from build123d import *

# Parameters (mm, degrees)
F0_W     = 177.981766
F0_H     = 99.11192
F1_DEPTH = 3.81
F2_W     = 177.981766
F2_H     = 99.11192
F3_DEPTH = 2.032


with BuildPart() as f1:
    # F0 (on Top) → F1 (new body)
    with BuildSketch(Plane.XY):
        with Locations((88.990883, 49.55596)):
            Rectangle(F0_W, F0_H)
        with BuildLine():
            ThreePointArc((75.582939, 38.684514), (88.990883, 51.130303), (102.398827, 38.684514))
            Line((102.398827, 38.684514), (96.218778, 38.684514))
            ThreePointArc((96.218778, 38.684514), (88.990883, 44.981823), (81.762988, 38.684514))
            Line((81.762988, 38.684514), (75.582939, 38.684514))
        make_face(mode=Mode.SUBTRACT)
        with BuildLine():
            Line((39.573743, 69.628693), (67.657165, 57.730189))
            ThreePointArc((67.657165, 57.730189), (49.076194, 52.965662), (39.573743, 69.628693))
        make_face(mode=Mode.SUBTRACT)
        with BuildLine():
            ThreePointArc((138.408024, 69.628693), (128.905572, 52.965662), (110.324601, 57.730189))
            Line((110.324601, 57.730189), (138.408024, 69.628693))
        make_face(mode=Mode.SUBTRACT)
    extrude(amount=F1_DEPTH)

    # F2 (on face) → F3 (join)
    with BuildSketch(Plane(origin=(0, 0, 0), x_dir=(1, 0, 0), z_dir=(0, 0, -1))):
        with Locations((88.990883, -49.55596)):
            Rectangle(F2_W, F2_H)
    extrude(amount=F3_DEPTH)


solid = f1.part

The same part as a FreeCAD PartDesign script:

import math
import FreeCAD as App
import Part
import Sketcher

V = App.Vector
Q = App.Units.Quantity

doc = App.newDocument("Part")
params = doc.addObject("Spreadsheet::Sheet", "Params")
for row, (alias, value) in enumerate([
    ("pad1_length", "0.15 in"),
    ("pad2_length", "0.08 in"),
], start=1):
    params.set(f"A{row}", alias)
    params.set(f"B{row}", "=" + value)
    params.setAlias(f"B{row}", alias)

body = doc.addObject("PartDesign::Body", "Body")

# Sketch on XY plane
sketch1 = body.newObject("Sketcher::SketchObject", "Sketch")
sketch1.AttachmentSupport = (doc.getObject("XY_Plane"), [""])
sketch1.MapMode = "FlatFace"
sketch1.addGeometry([
    Part.LineSegment(V(0, 99, 0), V(0, 0, 0)),  # 0
    Part.LineSegment(V(0, 0, 0), V(178, 0, 0)),  # 1
    Part.LineSegment(V(178, 0, 0), V(178, 99, 0)),  # 2
    Part.LineSegment(V(178, 99, 0), V(0, 99, 0)),  # 3
    Part.LineSegment(V(82, 39, 0), V(76, 39, 0)),  # 4
    Part.ArcOfCircle(Part.Circle(V(89, 38, 0), V(0, 0, 1), 13), math.radians(4), math.radians(176)),  # 5
    Part.LineSegment(V(102, 39, 0), V(96, 39, 0)),  # 6
    Part.ArcOfCircle(Part.Circle(V(89, 38, 0), V(0, 0, 1), 7), math.radians(8), math.radians(172)),  # 7
    Part.ArcOfCircle(Part.Circle(V(55, 68, 0), V(0, 0, 1), 16), math.radians(172), math.radians(322)),  # 8
    Part.LineSegment(V(40, 70, 0), V(68, 58, 0)),  # 9
    Part.LineSegment(V(110, 58, 0), V(138, 70, 0)),  # 10
    Part.ArcOfCircle(Part.Circle(V(123, 68, 0), V(0, 0, 1), 16), math.radians(-142), math.radians(8)),  # 11
], False)
sketch1.addConstraint([
    Sketcher.Constraint("Coincident", 0, 2, 1, 1),
    Sketcher.Constraint("Coincident", 1, 2, 2, 1),
    Sketcher.Constraint("Coincident", 2, 2, 3, 1),
    Sketcher.Constraint("Coincident", 3, 2, 0, 1),
    Sketcher.Constraint("Coincident", 4, 2, 5, 2),
    Sketcher.Constraint("Coincident", 5, 1, 6, 1),
    Sketcher.Constraint("Coincident", 6, 2, 7, 1),
    Sketcher.Constraint("Coincident", 7, 2, 4, 1),
    Sketcher.Constraint("Coincident", 8, 1, 9, 1),
    Sketcher.Constraint("Coincident", 9, 2, 8, 2),
    Sketcher.Constraint("Coincident", 10, 1, 11, 1),
    Sketcher.Constraint("Coincident", 11, 2, 10, 2),
    Sketcher.Constraint("Vertical", 0),
    Sketcher.Constraint("Horizontal", 1),
    Sketcher.Constraint("Vertical", 2),
    Sketcher.Constraint("Horizontal", 3),
    Sketcher.Constraint("Horizontal", 4),
    Sketcher.Constraint("Horizontal", 6),
    Sketcher.Constraint("Coincident", 0, 2, -1, 1),
    Sketcher.Constraint("Coincident", 7, 3, 5, 3),
    Sketcher.Constraint("Equal", 8, 11),
    Sketcher.Constraint("Horizontal", 8, 3, 11, 3),
    Sketcher.Constraint("Horizontal", 4, 2, 5, 1),
    Sketcher.Constraint("Horizontal", 9, 2, 10, 1),
    Sketcher.Constraint("Horizontal", 8, 1, 11, 2),
    Sketcher.Constraint("Radius", 5, Q("13.445135 mm")),
    Sketcher.Constraint("Radius", 7, Q("7.296654 mm")),
    Sketcher.Constraint("Radius", 8, Q("15.811365 mm")),
    Sketcher.Constraint("DistanceX", 4, 2, 4, 1, Q("6.180049 mm")),
    Sketcher.Constraint("DistanceY", 0, 2, 0, 1, Q("99.11192 mm")),
    Sketcher.Constraint("DistanceX", -1, 1, 10, 1, Q("110.324601 mm")),
    Sketcher.Constraint("DistanceX", 8, 3, 11, 3, Q("67.492899 mm")),
    Sketcher.Constraint("Distance", 9, Q("30.500049 mm")),
    Sketcher.Constraint("DistanceX", 1, 1, 1, 2, Q("177.981766 mm")),
    Sketcher.Constraint("DistanceY", -1, 1, 5, 3, Q("37.685168 mm")),
    Sketcher.Constraint("DistanceX", -1, 1, 4, 2, Q("75.582939 mm")),
    Sketcher.Constraint("DistanceY", -1, 1, 9, 2, Q("57.730189 mm")),
    Sketcher.Constraint("DistanceX", 8, 3, 7, 3, Q("33.74645 mm")),
])
pad1 = body.newObject("PartDesign::Pad", "Pad")
pad1.Profile = sketch1
pad1.setExpression("Length", "Params.pad1_length")

# Sketch on XY plane
sketch2 = body.newObject("Sketcher::SketchObject", "Sketch001")
sketch2.AttachmentSupport = (doc.getObject("XY_Plane"), [""])
sketch2.MapMode = "FlatFace"
sketch2.addGeometry([
    Part.LineSegment(V(0, 0, 0), V(0, 99, 0)),
    Part.LineSegment(V(0, 99, 0), V(178, 99, 0)),
    Part.LineSegment(V(178, 99, 0), V(178, 0, 0)),
    Part.LineSegment(V(178, 0, 0), V(0, 0, 0)),
], False)
sketch2.addConstraint([
    Sketcher.Constraint("Coincident", 0, 2, 1, 1),
    Sketcher.Constraint("Coincident", 1, 2, 2, 1),
    Sketcher.Constraint("Coincident", 2, 2, 3, 1),
    Sketcher.Constraint("Coincident", 3, 2, 0, 1),
    Sketcher.Constraint("Vertical", 0),
    Sketcher.Constraint("Horizontal", 1),
    Sketcher.Constraint("Vertical", 2),
    Sketcher.Constraint("Horizontal", 3),
    Sketcher.Constraint("Coincident", 3, 2, -1, 1),
    Sketcher.Constraint("DistanceY", 0, 1, 0, 2, Q("99.11192 mm")),
    Sketcher.Constraint("DistanceX", 1, 1, 1, 2, Q("177.981766 mm")),
])
pad2 = body.newObject("PartDesign::Pad", "Pad001")
pad2.Profile = sketch2
pad2.setExpression("Length", "Params.pad2_length")
pad2.Reversed = True

doc.recompute()
